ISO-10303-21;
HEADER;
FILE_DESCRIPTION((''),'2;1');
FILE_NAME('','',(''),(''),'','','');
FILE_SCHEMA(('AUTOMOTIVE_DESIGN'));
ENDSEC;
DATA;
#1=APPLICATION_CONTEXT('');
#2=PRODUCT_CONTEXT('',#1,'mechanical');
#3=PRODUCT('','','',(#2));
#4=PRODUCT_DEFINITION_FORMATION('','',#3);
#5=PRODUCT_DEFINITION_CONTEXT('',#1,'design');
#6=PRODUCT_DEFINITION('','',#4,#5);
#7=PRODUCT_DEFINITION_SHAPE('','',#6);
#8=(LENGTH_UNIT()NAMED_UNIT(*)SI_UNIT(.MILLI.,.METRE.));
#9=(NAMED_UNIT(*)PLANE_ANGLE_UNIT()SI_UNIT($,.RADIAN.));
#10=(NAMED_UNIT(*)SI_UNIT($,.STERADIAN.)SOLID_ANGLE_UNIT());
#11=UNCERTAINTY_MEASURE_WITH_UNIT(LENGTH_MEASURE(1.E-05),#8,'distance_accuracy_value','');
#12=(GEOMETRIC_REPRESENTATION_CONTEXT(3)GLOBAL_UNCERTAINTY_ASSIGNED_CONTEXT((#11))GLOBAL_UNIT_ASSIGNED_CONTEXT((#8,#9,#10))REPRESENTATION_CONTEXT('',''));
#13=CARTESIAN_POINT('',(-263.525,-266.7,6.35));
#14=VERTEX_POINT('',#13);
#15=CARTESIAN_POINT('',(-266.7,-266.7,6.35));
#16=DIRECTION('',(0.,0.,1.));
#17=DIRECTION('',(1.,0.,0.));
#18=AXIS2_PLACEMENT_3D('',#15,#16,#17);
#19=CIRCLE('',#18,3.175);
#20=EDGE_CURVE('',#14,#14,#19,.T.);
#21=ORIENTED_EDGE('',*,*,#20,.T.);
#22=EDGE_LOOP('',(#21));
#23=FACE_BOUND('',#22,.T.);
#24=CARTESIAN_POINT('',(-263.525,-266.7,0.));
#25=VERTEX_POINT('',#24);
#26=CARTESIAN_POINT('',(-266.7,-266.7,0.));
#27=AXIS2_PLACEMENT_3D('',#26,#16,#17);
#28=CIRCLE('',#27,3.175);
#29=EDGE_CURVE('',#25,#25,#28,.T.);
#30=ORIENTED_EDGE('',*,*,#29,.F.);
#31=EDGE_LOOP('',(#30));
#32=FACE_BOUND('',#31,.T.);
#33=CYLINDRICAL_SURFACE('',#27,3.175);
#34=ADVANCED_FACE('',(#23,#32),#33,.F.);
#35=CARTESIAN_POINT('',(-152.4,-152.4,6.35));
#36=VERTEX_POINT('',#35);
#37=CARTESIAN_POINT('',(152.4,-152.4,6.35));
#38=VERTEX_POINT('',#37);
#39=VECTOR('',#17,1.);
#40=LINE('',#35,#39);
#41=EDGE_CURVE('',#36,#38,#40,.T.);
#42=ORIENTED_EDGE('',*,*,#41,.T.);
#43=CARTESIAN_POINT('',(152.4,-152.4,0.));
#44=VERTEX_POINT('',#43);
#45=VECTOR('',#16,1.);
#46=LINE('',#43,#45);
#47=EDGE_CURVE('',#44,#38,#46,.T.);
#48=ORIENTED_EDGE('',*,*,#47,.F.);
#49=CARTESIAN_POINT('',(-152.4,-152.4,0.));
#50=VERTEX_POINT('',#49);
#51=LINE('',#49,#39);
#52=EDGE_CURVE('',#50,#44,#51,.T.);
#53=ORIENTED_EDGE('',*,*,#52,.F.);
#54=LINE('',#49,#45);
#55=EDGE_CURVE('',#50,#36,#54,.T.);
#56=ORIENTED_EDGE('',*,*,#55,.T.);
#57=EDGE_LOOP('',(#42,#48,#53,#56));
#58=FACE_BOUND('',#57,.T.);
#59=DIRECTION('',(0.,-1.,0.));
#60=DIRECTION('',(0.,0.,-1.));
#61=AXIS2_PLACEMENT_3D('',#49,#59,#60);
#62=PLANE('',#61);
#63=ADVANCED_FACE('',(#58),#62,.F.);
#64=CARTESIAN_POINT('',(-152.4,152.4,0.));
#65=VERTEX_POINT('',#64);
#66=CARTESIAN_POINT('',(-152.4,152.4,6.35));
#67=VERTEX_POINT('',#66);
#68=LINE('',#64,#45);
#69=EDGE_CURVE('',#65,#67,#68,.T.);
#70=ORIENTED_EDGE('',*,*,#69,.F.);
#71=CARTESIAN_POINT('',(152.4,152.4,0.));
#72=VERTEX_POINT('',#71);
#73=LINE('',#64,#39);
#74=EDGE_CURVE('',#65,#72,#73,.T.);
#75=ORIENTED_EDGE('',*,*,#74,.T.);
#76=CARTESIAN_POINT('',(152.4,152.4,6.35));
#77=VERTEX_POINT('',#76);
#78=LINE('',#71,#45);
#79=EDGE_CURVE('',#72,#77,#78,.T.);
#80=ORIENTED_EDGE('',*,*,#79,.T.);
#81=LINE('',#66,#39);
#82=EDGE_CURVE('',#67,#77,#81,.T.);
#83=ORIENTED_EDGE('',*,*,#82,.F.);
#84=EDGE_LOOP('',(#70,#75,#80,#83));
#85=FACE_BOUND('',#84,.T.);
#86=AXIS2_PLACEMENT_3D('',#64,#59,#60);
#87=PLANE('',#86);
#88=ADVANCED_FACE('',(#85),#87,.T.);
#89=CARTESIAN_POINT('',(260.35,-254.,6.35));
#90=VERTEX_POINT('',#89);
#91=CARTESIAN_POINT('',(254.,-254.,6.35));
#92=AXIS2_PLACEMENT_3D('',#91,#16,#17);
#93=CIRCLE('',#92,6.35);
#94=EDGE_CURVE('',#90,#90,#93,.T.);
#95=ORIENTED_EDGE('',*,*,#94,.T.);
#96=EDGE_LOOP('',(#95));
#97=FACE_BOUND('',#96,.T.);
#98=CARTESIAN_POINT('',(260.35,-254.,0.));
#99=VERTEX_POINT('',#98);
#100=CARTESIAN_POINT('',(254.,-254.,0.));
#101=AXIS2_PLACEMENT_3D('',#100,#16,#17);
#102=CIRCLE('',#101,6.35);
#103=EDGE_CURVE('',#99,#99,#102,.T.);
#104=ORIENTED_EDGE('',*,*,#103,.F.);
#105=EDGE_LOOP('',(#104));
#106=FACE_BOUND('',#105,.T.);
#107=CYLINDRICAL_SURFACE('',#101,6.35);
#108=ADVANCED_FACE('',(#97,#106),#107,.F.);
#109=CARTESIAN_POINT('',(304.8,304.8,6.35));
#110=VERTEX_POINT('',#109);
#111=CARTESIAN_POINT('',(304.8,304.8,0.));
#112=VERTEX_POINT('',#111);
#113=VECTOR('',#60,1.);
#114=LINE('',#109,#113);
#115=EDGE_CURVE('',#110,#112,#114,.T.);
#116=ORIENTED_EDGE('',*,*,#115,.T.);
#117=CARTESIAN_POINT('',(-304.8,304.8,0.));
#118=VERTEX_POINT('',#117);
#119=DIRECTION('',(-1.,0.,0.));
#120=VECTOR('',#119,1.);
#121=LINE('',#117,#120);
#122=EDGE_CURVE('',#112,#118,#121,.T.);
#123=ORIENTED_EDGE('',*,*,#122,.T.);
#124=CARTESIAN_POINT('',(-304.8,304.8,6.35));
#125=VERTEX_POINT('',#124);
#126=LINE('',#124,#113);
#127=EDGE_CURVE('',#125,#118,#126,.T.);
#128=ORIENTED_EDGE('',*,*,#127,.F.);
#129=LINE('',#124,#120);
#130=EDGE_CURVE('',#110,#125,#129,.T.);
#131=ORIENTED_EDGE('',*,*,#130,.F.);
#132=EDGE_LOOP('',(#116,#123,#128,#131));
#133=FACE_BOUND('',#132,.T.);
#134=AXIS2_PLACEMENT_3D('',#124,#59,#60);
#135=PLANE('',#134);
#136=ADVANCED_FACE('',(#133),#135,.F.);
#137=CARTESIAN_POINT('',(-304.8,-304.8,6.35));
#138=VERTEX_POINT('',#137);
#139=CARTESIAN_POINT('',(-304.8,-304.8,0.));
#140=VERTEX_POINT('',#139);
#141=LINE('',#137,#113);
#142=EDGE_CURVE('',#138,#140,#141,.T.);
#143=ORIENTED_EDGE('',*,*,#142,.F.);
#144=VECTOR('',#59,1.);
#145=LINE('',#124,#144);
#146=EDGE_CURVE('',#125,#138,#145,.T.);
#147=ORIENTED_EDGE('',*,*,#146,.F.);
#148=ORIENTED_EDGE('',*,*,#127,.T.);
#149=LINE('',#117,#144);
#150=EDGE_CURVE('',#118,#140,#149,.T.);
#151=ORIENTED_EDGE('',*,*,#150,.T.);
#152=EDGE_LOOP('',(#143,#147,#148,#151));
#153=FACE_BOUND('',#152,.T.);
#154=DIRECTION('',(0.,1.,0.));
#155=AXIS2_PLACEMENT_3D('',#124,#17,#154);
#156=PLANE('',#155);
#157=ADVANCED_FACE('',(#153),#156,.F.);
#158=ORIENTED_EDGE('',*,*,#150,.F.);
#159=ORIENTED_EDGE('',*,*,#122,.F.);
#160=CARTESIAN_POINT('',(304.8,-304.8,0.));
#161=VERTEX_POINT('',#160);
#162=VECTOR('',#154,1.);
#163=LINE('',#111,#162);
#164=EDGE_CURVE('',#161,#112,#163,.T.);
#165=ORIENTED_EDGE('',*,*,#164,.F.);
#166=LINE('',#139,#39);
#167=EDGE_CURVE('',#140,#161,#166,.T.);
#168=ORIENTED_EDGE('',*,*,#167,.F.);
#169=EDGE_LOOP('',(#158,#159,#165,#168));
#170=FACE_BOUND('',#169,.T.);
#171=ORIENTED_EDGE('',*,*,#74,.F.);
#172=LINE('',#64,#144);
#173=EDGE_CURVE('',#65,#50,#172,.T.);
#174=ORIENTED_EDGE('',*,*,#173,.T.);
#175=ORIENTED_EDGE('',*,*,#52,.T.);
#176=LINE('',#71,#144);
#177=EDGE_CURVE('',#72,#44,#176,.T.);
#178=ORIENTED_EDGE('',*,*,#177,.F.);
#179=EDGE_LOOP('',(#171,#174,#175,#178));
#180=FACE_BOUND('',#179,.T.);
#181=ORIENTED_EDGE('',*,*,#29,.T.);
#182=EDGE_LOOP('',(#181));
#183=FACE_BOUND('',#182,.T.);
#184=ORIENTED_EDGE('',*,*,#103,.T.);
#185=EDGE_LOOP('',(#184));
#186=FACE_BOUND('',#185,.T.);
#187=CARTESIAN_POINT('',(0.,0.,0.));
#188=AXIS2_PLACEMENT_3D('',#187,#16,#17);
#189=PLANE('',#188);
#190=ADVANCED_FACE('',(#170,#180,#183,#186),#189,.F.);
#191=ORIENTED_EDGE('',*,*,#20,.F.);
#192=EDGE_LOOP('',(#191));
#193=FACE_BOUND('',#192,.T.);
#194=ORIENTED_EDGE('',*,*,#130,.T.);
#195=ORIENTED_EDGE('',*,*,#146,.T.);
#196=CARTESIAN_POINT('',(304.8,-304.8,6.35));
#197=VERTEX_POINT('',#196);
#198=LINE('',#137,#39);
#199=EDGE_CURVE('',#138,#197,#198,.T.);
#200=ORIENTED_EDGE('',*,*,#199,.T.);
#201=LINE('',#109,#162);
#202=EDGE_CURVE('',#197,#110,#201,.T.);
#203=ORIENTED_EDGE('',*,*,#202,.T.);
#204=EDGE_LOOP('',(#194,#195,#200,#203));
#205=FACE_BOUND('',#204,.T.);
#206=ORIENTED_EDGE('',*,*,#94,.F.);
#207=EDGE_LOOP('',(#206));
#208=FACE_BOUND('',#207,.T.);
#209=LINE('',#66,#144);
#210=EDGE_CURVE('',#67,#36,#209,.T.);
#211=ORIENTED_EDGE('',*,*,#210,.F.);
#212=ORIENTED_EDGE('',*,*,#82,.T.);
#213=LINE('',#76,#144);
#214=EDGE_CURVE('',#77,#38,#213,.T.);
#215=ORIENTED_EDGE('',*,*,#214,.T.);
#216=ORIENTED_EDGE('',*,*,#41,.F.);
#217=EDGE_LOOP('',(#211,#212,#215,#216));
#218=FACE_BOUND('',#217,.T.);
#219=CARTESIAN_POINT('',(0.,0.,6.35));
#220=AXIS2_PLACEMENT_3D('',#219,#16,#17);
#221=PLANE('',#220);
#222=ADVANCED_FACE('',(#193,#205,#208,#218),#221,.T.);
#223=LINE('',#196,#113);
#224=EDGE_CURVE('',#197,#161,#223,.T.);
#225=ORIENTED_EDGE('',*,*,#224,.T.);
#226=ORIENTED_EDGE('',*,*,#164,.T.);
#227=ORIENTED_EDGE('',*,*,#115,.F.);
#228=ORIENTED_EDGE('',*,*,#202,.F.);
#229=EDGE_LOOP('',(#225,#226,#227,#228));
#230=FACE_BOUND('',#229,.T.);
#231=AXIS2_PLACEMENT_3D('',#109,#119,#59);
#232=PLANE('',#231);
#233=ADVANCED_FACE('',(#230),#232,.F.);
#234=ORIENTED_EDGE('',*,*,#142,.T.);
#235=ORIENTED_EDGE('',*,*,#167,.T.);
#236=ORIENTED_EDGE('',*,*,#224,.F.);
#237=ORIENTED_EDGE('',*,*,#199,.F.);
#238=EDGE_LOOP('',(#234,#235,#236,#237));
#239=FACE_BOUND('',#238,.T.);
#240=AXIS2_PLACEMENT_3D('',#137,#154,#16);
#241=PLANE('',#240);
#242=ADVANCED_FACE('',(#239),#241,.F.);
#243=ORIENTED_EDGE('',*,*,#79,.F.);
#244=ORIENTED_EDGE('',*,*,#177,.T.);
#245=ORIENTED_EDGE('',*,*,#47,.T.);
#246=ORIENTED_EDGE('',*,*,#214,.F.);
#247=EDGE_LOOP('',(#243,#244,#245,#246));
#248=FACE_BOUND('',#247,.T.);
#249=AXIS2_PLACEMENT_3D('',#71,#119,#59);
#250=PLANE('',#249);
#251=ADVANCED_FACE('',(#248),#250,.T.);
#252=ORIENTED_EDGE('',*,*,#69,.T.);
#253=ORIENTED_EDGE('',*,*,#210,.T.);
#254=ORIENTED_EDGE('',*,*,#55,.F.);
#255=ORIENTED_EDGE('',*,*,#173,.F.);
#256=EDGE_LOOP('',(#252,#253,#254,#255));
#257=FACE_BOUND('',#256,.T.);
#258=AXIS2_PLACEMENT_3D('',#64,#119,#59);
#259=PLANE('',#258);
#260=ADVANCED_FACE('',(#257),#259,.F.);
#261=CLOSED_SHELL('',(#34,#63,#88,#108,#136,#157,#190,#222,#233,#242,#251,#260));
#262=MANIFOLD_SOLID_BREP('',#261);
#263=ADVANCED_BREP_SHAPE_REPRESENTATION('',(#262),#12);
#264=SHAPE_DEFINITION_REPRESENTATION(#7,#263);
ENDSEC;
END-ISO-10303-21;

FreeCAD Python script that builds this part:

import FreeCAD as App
import Part
import Sketcher
from FreeCAD import Vector
Q = App.Units.Quantity

doc = App.newDocument("Part")
params = doc.addObject("Spreadsheet::Sheet", "Params")
for row, (alias, value) in enumerate([
    ("sketch1_width", "24 in"),
    ("pad1_length", "0.25 in"),
    ("sketch2_diameter", "0.5 in"),
    ("pocket1_length", "0.25 in"),
    ("sketch3_width", "12 in"),
    ("sketch4_diameter", "0.25 in"),
], start=1):
    params.set(f"A{row}", alias)
    params.set(f"B{row}", "=" + value)
    params.setAlias(f"B{row}", alias)

body = doc.addObject("PartDesign::Body", "Body")

sketch1 = body.newObject("Sketcher::SketchObject", "Sketch")
sketch1.AttachmentSupport = (doc.getObject("XY_Plane"), [""])
sketch1.MapMode = "FlatFace"
sketch1.addGeometry([
    Part.LineSegment(Vector(-304.8, 304.8, 0), Vector(-304.8, -304.8, 0)),
    Part.LineSegment(Vector(-304.8, -304.8, 0), Vector(304.8, -304.8, 0)),
    Part.LineSegment(Vector(304.8, -304.8, 0), Vector(304.8, 304.8, 0)),
    Part.LineSegment(Vector(304.8, 304.8, 0), Vector(-304.8, 304.8, 0)),
], False)
sketch1.addConstraint([
    Sketcher.Constraint("Coincident", 0, 2, 1, 1),
    Sketcher.Constraint("Coincident", 1, 2, 2, 1),
    Sketcher.Constraint("Coincident", 2, 2, 3, 1),
    Sketcher.Constraint("Coincident", 3, 2, 0, 1),
    Sketcher.Constraint("Vertical", 0),
    Sketcher.Constraint("Horizontal", 1),
    Sketcher.Constraint("Vertical", 2),
    Sketcher.Constraint("Horizontal", 3),
    Sketcher.Constraint("Symmetric", 0, 2, 2, 2, -1, 1),
    Sketcher.Constraint("Equal", 3, 0),
    Sketcher.Constraint("DistanceX", 1, 1, 1, 2, Q("24 in")),
])
sketch1.setExpression("Constraints[10]", "Params.sketch1_width")
pad1 = body.newObject("PartDesign::Pad", "Pad")
pad1.Profile = sketch1
pad1.setExpression("Length", "Params.pad1_length")

sketch2 = body.newObject("Sketcher::SketchObject", "Sketch001")
sketch2.AttachmentSupport = (doc.getObject("XY_Plane"), [""])
sketch2.MapMode = "FlatFace"
sketch2.AttachmentOffset = App.Placement(Vector(0, 0, 0.25 * 25.4), App.Rotation())
sketch2.addGeometry(Part.Circle(Vector(254, -254, 0), Vector(0, 0, 1), 6.35), False)
sketch2.addConstraint([
    Sketcher.Constraint("Diameter", 0, Q("0.5 in")),
    Sketcher.Constraint("DistanceX", -1, 1, 0, 3, Q("10 in")),
    Sketcher.Constraint("DistanceY", 0, 3, -1, 1, Q("10 in")),
])
sketch2.setExpression("Constraints[0]", "Params.sketch2_diameter")
pocket1 = body.newObject("PartDesign::Pocket", "Pocket")
pocket1.Profile = sketch2
pocket1.setExpression("Length", "Params.pocket1_length")

sketch3 = body.newObject("Sketcher::SketchObject", "Sketch002")
sketch3.AttachmentSupport = (doc.getObject("XY_Plane"), [""])
sketch3.MapMode = "FlatFace"
sketch3.AttachmentOffset = App.Placement(Vector(0, 0, 0.25 * 25.4), App.Rotation())
sketch3.addGeometry([
    Part.LineSegment(Vector(-152.4, 152.4, 0), Vector(-152.4, -152.4, 0)),
    Part.LineSegment(Vector(-152.4, -152.4, 0), Vector(152.4, -152.4, 0)),
    Part.LineSegment(Vector(152.4, -152.4, 0), Vector(152.4, 152.4, 0)),
    Part.LineSegment(Vector(152.4, 152.4, 0), Vector(-152.4, 152.4, 0)),
], False)
sketch3.addConstraint([
    Sketcher.Constraint("Coincident", 0, 2, 1, 1),
    Sketcher.Constraint("Coincident", 1, 2, 2, 1),
    Sketcher.Constraint("Coincident", 2, 2, 3, 1),
    Sketcher.Constraint("Coincident", 3, 2, 0, 1),
    Sketcher.Constraint("Vertical", 0),
    Sketcher.Constraint("Horizontal", 1),
    Sketcher.Constraint("Vertical", 2),
    Sketcher.Constraint("Horizontal", 3),
    Sketcher.Constraint("Symmetric", 0, 2, 2, 2, -1, 1),
    Sketcher.Constraint("Equal", 3, 0),
    Sketcher.Constraint("DistanceX", 1, 1, 1, 2, Q("12 in")),
])
sketch3.setExpression("Constraints[10]", "Params.sketch3_width")
pocket2 = body.newObject("PartDesign::Pocket", "Pocket001")
pocket2.Profile = sketch3
pocket2.Type = "ThroughAll"

sketch4 = body.newObject("Sketcher::SketchObject", "Sketch003")
sketch4.AttachmentSupport = (doc.getObject("XY_Plane"), [""])
sketch4.MapMode = "FlatFace"
sketch4.AttachmentOffset = App.Placement(Vector(0, 0, 0.25 * 25.4), App.Rotation())
sketch4.addGeometry(Part.Circle(Vector(-266.7, -266.7, 0), Vector(0, 0, 1), 3.175), False)
sketch4.addConstraint([
    Sketcher.Constraint("Diameter", 0, Q("0.25 in")),
    Sketcher.Constraint("DistanceX", 0, 3, -1, 1, Q("10.5 in")),
    Sketcher.Constraint("DistanceY", 0, 3, -1, 1, Q("10.5 in")),
])
sketch4.setExpression("Constraints[0]", "Params.sketch4_diameter")
pocket3 = body.newObject("PartDesign::Pocket", "Pocket002")
pocket3.Profile = sketch4
pocket3.Type = "ThroughAll"

doc.recompute()
